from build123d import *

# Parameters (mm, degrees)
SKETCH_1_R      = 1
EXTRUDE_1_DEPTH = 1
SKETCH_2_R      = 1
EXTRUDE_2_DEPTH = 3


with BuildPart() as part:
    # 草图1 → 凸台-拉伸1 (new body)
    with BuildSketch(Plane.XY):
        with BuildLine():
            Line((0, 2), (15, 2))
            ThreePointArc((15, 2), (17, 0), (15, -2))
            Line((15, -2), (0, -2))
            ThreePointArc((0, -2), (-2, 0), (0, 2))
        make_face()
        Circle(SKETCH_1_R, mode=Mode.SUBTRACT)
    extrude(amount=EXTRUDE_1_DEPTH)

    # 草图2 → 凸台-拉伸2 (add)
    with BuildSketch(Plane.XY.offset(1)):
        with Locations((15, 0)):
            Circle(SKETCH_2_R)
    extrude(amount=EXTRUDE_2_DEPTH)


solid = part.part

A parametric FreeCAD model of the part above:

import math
import FreeCAD as App
import Part
import Sketcher

V = App.Vector

doc = App.newDocument("Part")
body = doc.addObject("PartDesign::Body", "Body")

# Sketch on XY plane
sketch1 = doc.addObject("Sketcher::SketchObject", "Sketch")
body.addObject(sketch1)
sketch1.AttachmentSupport = (doc.XY_Plane, [""])
sketch1.MapMode = "FlatFace"
sketch1.addGeometry([
    Part.LineSegment(V(15, 2, 0), V(0, 2, 0)),  # 0
    Part.ArcOfCircle(Part.Circle(V(0, 0, 0), V(0, 0, 1), 2), math.radians(90), math.radians(270)),  # 1
    Part.LineSegment(V(0, -2, 0), V(15, -2, 0)),  # 2
    Part.ArcOfCircle(Part.Circle(V(15, 0, 0), V(0, 0, 1), 2), math.radians(-90), math.radians(90)),  # 3
    Part.Circle(V(0, 0, 0), V(0, 0, 1), 1),  # 4
], False)
sketch1.addConstraint([
    Sketcher.Constraint("Tangent", 0, 2, 1, 1),
    Sketcher.Constraint("Tangent", 1, 2, 2, 1),
    Sketcher.Constraint("Tangent", 2, 2, 3, 1),
    Sketcher.Constraint("Tangent", 3, 2, 0, 1),
    Sketcher.Constraint("Horizontal", 0),
    Sketcher.Constraint("Horizontal", 2),
    Sketcher.Constraint("Coincident", 1, 3, -1, 1),
    Sketcher.Constraint("Coincident", 4, 3, -1, 1),
    Sketcher.Constraint("Diameter", 4, 2.0),
    Sketcher.Constraint("Radius", 1, 2.0),
    Sketcher.Constraint("DistanceX", 0, 2, 0, 1, 15.0),
])
pad1 = doc.addObject("PartDesign::Pad", "Pad")
body.addObject(pad1)
pad1.Profile = sketch1
pad1.Length = 1

# Sketch on XY plane
sketch2 = doc.addObject("Sketcher::SketchObject", "Sketch001")
body.addObject(sketch2)
sketch2.AttachmentSupport = (doc.XY_Plane, [""])
sketch2.MapMode = "FlatFace"
sketch2.AttachmentOffset = App.Placement(V(0, 0, 1), App.Rotation())
sketch2.addGeometry(Part.Circle(V(15, 0, 0), V(0, 0, 1), 1), False)
sketch2.addConstraint([
    Sketcher.Constraint("PointOnObject", 0, 3, -1),
    Sketcher.Constraint("Diameter", 0, 2.0),
    Sketcher.Constraint("DistanceX", -1, 1, 0, 3, 15.0),
])
pad2 = doc.addObject("PartDesign::Pad", "Pad001")
body.addObject(pad2)
pad2.Profile = sketch2
pad2.Length = 3

doc.recompute()
